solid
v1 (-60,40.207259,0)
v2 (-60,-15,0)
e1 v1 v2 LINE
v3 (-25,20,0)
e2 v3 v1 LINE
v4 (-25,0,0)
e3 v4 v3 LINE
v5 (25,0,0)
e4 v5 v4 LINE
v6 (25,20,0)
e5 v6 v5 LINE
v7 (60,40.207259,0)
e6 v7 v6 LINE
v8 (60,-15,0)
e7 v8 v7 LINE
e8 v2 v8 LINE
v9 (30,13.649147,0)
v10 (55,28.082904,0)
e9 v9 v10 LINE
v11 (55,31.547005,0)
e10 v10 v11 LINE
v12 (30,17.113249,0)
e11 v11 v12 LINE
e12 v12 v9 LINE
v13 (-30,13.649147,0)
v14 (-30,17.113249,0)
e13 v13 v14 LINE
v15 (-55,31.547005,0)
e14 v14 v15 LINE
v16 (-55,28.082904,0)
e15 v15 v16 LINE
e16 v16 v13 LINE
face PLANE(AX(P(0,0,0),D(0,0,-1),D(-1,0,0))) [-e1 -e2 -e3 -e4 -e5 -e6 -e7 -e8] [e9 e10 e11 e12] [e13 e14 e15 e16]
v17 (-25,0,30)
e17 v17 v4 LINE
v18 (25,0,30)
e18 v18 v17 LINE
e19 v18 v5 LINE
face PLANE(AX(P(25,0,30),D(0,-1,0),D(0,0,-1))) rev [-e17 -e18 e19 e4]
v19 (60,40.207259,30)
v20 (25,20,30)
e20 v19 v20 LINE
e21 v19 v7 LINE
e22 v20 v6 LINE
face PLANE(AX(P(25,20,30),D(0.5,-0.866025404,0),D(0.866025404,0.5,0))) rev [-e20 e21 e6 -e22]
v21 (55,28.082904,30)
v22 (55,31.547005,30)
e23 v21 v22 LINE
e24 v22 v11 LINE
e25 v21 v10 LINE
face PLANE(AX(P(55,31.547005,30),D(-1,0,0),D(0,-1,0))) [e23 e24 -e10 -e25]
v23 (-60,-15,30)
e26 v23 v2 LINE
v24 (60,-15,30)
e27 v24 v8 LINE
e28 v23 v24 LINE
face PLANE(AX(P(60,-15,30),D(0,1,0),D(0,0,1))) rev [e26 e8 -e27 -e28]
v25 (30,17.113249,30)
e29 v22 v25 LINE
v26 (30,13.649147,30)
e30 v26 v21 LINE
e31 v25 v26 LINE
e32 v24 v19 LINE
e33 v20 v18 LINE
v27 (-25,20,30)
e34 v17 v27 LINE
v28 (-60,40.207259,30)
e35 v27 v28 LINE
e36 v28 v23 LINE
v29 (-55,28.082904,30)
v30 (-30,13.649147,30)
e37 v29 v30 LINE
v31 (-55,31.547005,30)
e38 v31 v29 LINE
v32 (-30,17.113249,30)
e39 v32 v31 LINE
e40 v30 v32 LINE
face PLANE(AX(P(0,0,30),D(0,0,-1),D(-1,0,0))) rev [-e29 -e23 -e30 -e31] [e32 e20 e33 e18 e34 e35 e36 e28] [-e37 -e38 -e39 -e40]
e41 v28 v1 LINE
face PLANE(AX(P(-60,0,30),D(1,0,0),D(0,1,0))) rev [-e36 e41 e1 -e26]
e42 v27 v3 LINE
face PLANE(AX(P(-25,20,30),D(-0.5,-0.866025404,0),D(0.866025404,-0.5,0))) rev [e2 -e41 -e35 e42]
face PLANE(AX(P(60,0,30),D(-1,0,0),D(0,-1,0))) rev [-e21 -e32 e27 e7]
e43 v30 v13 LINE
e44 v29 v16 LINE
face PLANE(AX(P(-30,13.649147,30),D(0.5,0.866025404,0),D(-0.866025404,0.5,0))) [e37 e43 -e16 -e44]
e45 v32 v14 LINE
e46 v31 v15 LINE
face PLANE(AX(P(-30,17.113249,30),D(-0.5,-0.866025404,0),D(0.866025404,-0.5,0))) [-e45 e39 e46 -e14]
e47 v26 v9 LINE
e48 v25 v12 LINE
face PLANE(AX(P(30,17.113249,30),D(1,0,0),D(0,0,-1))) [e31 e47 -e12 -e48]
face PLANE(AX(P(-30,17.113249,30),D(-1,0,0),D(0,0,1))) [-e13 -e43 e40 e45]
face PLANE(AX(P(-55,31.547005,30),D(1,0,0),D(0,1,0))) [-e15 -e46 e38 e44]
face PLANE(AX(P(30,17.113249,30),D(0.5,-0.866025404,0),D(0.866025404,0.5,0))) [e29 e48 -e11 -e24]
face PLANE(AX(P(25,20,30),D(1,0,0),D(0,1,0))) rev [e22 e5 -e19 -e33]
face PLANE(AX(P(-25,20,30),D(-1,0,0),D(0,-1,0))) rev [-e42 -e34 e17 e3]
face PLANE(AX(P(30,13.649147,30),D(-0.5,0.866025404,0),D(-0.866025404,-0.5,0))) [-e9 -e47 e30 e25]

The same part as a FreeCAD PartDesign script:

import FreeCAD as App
import Part
import Sketcher
from FreeCAD import Vector
Q = App.Units.Quantity


def add_polygon(sketch, points):
    """Adds a closed chain of lines whose ends are joined by coincident constraints."""
    first, n = sketch.GeometryCount, len(points)
    for a, b in zip(points, points[1:] + points[:1]):
        sketch.addGeometry(Part.LineSegment(App.Vector(*a, 0), App.Vector(*b, 0)), False)
    for i in range(n):
        sketch.addConstraint(Sketcher.Constraint("Coincident", first + i, 2, first + (i + 1) % n, 1))

doc = App.newDocument("Part")
body = doc.addObject("PartDesign::Body", "Body")

# Sketch on XY plane
sketch1 = body.newObject("Sketcher::SketchObject", "Sketch")
sketch1.AttachmentSupport = (doc.getObject("XY_Plane"), [""])
sketch1.MapMode = "FlatFace"
add_polygon(sketch1, [(60, 40.2), (25, 20), (25, 0), (-25, 0), (-25, 20), (-60, 40.2), (-60, -15), (60, -15)])  # lines 0-7
add_polygon(sketch1, [(30, 17.1), (55, 31.5), (55, 28.1), (30, 13.6)])  # lines 8-11
add_polygon(sketch1, [(-30, 17.1), (-30, 13.6), (-55, 28.1), (-55, 31.5)])  # lines 12-15
sketch1.addConstraint([
    Sketcher.Constraint("Vertical", 1),
    Sketcher.Constraint("Horizontal", 2),
    Sketcher.Constraint("Vertical", 3),
    Sketcher.Constraint("Vertical", 5),
    Sketcher.Constraint("Horizontal", 6),
    Sketcher.Constraint("Vertical", 7),
    Sketcher.Constraint("Vertical", 9),
    Sketcher.Constraint("Vertical", 11),
    Sketcher.Constraint("Vertical", 12),
    Sketcher.Constraint("Vertical", 14),
    Sketcher.Constraint("Symmetric", 1, 2, 2, 2, -1, 1),
    Sketcher.Constraint("Symmetric", 4, 2, 7, 2, -2),
    Sketcher.Constraint("Symmetric", 10, 2, 12, 2, -2),
    Sketcher.Constraint("Symmetric", 9, 2, 13, 2, -2),
    Sketcher.Constraint("Parallel", 0, 8),
    Sketcher.Constraint("Parallel", 8, 10),
    Sketcher.Constraint("Parallel", 4, 13),
    Sketcher.Constraint("Parallel", 13, 15),
    Sketcher.Constraint("Horizontal", 8, 2, 14, 2),
    Sketcher.Constraint("DistanceX", 2, 2, 2, 1, Q("50 mm")),
    Sketcher.Constraint("DistanceX", 6, 1, 6, 2, Q("120 mm")),
    Sketcher.Constraint("DistanceY", 1, 2, 1, 1, Q("20 mm")),
    Sketcher.Constraint("Angle", 0, Q("-150 deg")),
    Sketcher.Constraint("DistanceY", 5, 2, -1, 1, Q("15 mm")),
    Sketcher.Constraint("DistanceX", -1, 1, 8, 2, Q("55 mm")),
    Sketcher.Constraint("DistanceX", -1, 1, 10, 2, Q("30 mm")),
    Sketcher.Constraint("DistanceY", 9, 2, 9, 1, Q("3.464102 mm")),
    Sketcher.Constraint("DistanceY", -1, 1, 11, 2, Q("17.113249 mm")),
])
pad1 = body.newObject("PartDesign::Pad", "Pad")
pad1.Profile = sketch1
pad1.Length = 30

doc.recompute()
